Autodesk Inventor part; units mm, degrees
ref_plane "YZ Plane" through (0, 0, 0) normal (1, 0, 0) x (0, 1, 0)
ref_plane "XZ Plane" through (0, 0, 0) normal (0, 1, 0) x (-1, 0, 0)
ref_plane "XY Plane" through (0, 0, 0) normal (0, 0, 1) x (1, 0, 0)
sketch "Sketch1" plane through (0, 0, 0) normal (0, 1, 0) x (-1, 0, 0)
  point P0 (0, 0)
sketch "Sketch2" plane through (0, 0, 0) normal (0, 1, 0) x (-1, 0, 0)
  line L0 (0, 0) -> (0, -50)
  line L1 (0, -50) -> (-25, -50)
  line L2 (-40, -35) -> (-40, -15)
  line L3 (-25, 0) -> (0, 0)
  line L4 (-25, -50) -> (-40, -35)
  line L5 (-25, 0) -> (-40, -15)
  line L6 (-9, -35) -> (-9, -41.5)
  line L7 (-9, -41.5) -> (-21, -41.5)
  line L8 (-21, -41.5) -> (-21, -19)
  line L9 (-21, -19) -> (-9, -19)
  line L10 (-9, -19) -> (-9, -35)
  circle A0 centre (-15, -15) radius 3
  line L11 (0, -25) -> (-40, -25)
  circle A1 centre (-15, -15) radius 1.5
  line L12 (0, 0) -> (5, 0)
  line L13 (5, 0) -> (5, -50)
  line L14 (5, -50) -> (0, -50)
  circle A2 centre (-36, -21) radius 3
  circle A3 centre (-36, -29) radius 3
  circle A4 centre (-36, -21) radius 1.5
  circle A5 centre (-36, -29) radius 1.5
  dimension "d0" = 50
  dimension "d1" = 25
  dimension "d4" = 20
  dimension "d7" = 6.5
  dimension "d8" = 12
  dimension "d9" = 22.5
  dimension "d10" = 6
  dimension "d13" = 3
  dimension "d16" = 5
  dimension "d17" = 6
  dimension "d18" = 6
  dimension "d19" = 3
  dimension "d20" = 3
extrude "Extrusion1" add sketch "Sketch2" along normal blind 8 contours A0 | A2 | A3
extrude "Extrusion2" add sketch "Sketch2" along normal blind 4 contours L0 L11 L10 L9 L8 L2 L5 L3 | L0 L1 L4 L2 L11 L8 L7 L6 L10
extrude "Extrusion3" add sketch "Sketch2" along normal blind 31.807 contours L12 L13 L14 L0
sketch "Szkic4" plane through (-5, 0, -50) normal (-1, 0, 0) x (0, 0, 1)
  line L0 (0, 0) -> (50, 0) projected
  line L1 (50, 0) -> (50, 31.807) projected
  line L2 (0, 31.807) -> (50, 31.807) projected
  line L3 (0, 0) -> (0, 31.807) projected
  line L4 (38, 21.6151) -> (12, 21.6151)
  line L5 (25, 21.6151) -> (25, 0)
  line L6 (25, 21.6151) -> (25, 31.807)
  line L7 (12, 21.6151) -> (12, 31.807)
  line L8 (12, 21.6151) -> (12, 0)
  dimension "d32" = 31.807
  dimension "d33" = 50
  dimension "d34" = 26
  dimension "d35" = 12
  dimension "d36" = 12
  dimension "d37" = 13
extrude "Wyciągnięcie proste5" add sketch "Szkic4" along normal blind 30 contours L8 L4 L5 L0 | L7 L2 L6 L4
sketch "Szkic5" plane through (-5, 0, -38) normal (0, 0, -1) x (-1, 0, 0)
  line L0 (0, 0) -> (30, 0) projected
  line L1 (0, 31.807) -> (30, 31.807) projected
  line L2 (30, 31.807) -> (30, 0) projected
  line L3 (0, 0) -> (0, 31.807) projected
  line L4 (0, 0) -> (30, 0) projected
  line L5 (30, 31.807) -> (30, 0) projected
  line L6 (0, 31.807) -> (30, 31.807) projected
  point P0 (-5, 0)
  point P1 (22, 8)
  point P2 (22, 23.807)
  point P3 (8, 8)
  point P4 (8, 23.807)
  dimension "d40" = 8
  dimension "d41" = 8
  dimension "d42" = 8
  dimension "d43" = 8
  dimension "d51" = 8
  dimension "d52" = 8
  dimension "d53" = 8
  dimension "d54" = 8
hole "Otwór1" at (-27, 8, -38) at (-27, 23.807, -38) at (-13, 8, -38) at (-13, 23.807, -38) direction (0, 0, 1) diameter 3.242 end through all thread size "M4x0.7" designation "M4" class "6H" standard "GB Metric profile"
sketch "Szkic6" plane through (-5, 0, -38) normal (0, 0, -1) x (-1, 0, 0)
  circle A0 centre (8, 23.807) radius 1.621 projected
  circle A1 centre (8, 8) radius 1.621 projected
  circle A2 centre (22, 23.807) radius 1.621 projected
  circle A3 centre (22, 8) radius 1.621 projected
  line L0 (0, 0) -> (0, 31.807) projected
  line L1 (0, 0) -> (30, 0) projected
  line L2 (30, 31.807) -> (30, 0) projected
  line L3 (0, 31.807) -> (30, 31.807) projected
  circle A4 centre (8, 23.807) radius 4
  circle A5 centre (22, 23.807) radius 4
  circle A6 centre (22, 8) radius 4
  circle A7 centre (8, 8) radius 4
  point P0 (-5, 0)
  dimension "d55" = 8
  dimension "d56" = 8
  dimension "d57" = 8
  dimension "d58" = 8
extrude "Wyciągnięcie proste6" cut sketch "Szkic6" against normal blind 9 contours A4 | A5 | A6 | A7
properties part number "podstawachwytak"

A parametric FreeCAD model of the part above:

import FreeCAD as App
import Part
import Sketcher
from FreeCAD import Vector
Q = App.Units.Quantity

doc = App.newDocument("Part")
body = doc.addObject("PartDesign::Body", "Body")
body.AllowCompound = True

# Sketch on XZ plane
sketch1 = body.newObject("Sketcher::SketchObject", "Sketch")
sketch1.AttachmentSupport = (doc.getObject("XZ_Plane"), [""])
sketch1.MapMode = "FlatFace"
sketch1.addGeometry(Part.Circle(Vector(15, -15, 0), Vector(0, 0, 1), 3), False)
sketch1.addGeometry(Part.Circle(Vector(15, -15, 0), Vector(0, 0, 1), 1.5), False)
sketch1.addGeometry(Part.Circle(Vector(36, -21, 0), Vector(0, 0, 1), 3), False)
sketch1.addGeometry(Part.Circle(Vector(36, -21, 0), Vector(0, 0, 1), 1.5), False)
sketch1.addGeometry(Part.Circle(Vector(36, -29, 0), Vector(0, 0, 1), 3), False)
sketch1.addGeometry(Part.Circle(Vector(36, -29, 0), Vector(0, 0, 1), 1.5), False)
sketch1.addConstraint(Sketcher.Constraint("Coincident", 1, 3, 0, 3))
sketch1.addConstraint(Sketcher.Constraint("Coincident", 3, 3, 2, 3))
sketch1.addConstraint(Sketcher.Constraint("Coincident", 5, 3, 4, 3))
sketch1.addConstraint(Sketcher.Constraint("Equal", 0, 2))
sketch1.addConstraint(Sketcher.Constraint("Equal", 1, 3))
sketch1.addConstraint(Sketcher.Constraint("Equal", 2, 4))
sketch1.addConstraint(Sketcher.Constraint("Equal", 3, 5))
sketch1.addConstraint(Sketcher.Constraint("Vertical", 3, 3, 4, 3))
sketch1.addConstraint(Sketcher.Constraint("Diameter", 0, Q("6 mm")))
sketch1.addConstraint(Sketcher.Constraint("Diameter", 1, Q("3 mm")))
sketch1.addConstraint(Sketcher.Constraint("DistanceY", 2, 3, 0, 3, Q("6 mm")))
sketch1.addConstraint(Sketcher.Constraint("DistanceX", -1, 1, 0, 3, Q("15 mm")))
sketch1.addConstraint(Sketcher.Constraint("DistanceY", 0, 3, -1, 1, Q("15 mm")))
sketch1.addConstraint(Sketcher.Constraint("DistanceX", -1, 1, 2, 3, Q("36 mm")))
sketch1.addConstraint(Sketcher.Constraint("DistanceY", 4, 3, -1, 1, Q("29 mm")))
pad1 = body.newObject("PartDesign::Pad", "Pad")
pad1.Profile = sketch1
pad1.Length = 8
pad1.Reversed = True

# Sketch on XZ plane
sketch2 = body.newObject("Sketcher::SketchObject", "Sketch001")
sketch2.AttachmentSupport = (doc.getObject("XZ_Plane"), [""])
sketch2.MapMode = "FlatFace"
sketch2.addGeometry(Part.LineSegment(Vector(0, 0, 0), Vector(25, 0, 0)), False)
sketch2.addGeometry(Part.LineSegment(Vector(25, 0, 0), Vector(40, -15, 0)), False)
sketch2.addGeometry(Part.LineSegment(Vector(40, -15, 0), Vector(40, -35, 0)), False)
sketch2.addGeometry(Part.LineSegment(Vector(40, -35, 0), Vector(25, -50, 0)), False)
sketch2.addGeometry(Part.LineSegment(Vector(25, -50, 0), Vector(0, -50, 0)), False)
sketch2.addGeometry(Part.LineSegment(Vector(0, -50, 0), Vector(0, 0, 0)), False)
sketch2.addGeometry(Part.LineSegment(Vector(9, -19, 0), Vector(9, -41.5, 0)), False)
sketch2.addGeometry(Part.LineSegment(Vector(9, -41.5, 0), Vector(21, -41.5, 0)), False)
sketch2.addGeometry(Part.LineSegment(Vector(21, -41.5, 0), Vector(21, -19, 0)), False)
sketch2.addGeometry(Part.LineSegment(Vector(21, -19, 0), Vector(9, -19, 0)), False)
sketch2.addGeometry(Part.Circle(Vector(36, -21, 0), Vector(0, 0, 1), 3), False)
sketch2.addGeometry(Part.Circle(Vector(15, -15, 0), Vector(0, 0, 1), 3), False)
sketch2.addGeometry(Part.Circle(Vector(36, -29, 0), Vector(0, 0, 1), 3), False)
sketch2.addConstraint(Sketcher.Constraint("Coincident", 0, 2, 1, 1))
sketch2.addConstraint(Sketcher.Constraint("Coincident", 1, 2, 2, 1))
sketch2.addConstraint(Sketcher.Constraint("Coincident", 2, 2, 3, 1))
sketch2.addConstraint(Sketcher.Constraint("Coincident", 3, 2, 4, 1))
sketch2.addConstraint(Sketcher.Constraint("Coincident", 4, 2, 5, 1))
sketch2.addConstraint(Sketcher.Constraint("Coincident", 5, 2, 0, 1))
sketch2.addConstraint(Sketcher.Constraint("Coincident", 6, 2, 7, 1))
sketch2.addConstraint(Sketcher.Constraint("Coincident", 7, 2, 8, 1))
sketch2.addConstraint(Sketcher.Constraint("Coincident", 8, 2, 9, 1))
sketch2.addConstraint(Sketcher.Constraint("Coincident", 9, 2, 6, 1))
sketch2.addConstraint(Sketcher.Constraint("Horizontal", 0))
sketch2.addConstraint(Sketcher.Constraint("Vertical", 2))
sketch2.addConstraint(Sketcher.Constraint("Horizontal", 4))
sketch2.addConstraint(Sketcher.Constraint("Vertical", 5))
sketch2.addConstraint(Sketcher.Constraint("Vertical", 6))
sketch2.addConstraint(Sketcher.Constraint("Horizontal", 7))
sketch2.addConstraint(Sketcher.Constraint("Vertical", 8))
sketch2.addConstraint(Sketcher.Constraint("Horizontal", 9))
sketch2.addConstraint(Sketcher.Constraint("Coincident", 5, 2, -1, 1))
sketch2.addConstraint(Sketcher.Constraint("Equal", 10, 11))
sketch2.addConstraint(Sketcher.Constraint("Equal", 11, 12))
sketch2.addConstraint(Sketcher.Constraint("Perpendicular", 1, 3))
sketch2.addConstraint(Sketcher.Constraint("Horizontal", 11, 3, 1, 2))
sketch2.addConstraint(Sketcher.Constraint("Vertical", 10, 3, 12, 3))
sketch2.addConstraint(Sketcher.Constraint("Vertical", 0, 2, 3, 2))
sketch2.addConstraint(Sketcher.Constraint("Equal", 1, 3))
sketch2.addConstraint(Sketcher.Constraint("Diameter", 10, Q("6 mm")))
sketch2.addConstraint(Sketcher.Constraint("DistanceX", 0, 1, 0, 2, Q("25 mm")))
sketch2.addConstraint(Sketcher.Constraint("DistanceX", 7, 1, 7, 2, Q("12 mm")))
sketch2.addConstraint(Sketcher.Constraint("DistanceY", 2, 2, 2, 1, Q("20 mm")))
sketch2.addConstraint(Sketcher.Constraint("DistanceY", 5, 1, 5, 2, Q("50 mm")))
sketch2.addConstraint(Sketcher.Constraint("DistanceY", 6, 2, 6, 1, Q("22.5 mm")))
sketch2.addConstraint(Sketcher.Constraint("DistanceY", 10, 3, 11, 3, Q("6 mm")))
sketch2.addConstraint(Sketcher.Constraint("DistanceX", 11, 3, 1, 2, Q("25 mm")))
sketch2.addConstraint(Sketcher.Constraint("DistanceY", 2, 2, 12, 3, Q("6 mm")))
sketch2.addConstraint(Sketcher.Constraint("DistanceX", 6, 2, 11, 3, Q("6 mm")))
sketch2.addConstraint(Sketcher.Constraint("DistanceY", 6, 2, 2, 2, Q("6.5 mm")))
sketch2.addConstraint(Sketcher.Constraint("DistanceX", -1, 1, 10, 3, Q("36 mm")))
pad2 = body.newObject("PartDesign::Pad", "Pad001")
pad2.Profile = sketch2
pad2.Length = 4
pad2.Reversed = True

# Sketch on XZ plane
sketch3 = body.newObject("Sketcher::SketchObject", "Sketch002")
sketch3.AttachmentSupport = (doc.getObject("XZ_Plane"), [""])
sketch3.MapMode = "FlatFace"
sketch3.addGeometry(Part.LineSegment(Vector(-5, 0, 0), Vector(0, 0, 0)), False)
sketch3.addGeometry(Part.LineSegment(Vector(0, 0, 0), Vector(0, -50, 0)), False)
sketch3.addGeometry(Part.LineSegment(Vector(0, -50, 0), Vector(-5, -50, 0)), False)
sketch3.addGeometry(Part.LineSegment(Vector(-5, -50, 0), Vector(-5, 0, 0)), False)
sketch3.addConstraint(Sketcher.Constraint("Coincident", 0, 2, 1, 1))
sketch3.addConstraint(Sketcher.Constraint("Coincident", 1, 2, 2, 1))
sketch3.addConstraint(Sketcher.Constraint("Coincident", 2, 2, 3, 1))
sketch3.addConstraint(Sketcher.Constraint("Coincident", 3, 2, 0, 1))
sketch3.addConstraint(Sketcher.Constraint("Horizontal", 0))
sketch3.addConstraint(Sketcher.Constraint("Vertical", 1))
sketch3.addConstraint(Sketcher.Constraint("Horizontal", 2))
sketch3.addConstraint(Sketcher.Constraint("Vertical", 3))
sketch3.addConstraint(Sketcher.Constraint("Coincident", 0, 2, -1, 1))
sketch3.addConstraint(Sketcher.Constraint("DistanceX", 0, 1, 0, 2, Q("5 mm")))
sketch3.addConstraint(Sketcher.Constraint("DistanceY", 1, 2, 1, 1, Q("50 mm")))
pad3 = body.newObject("PartDesign::Pad", "Pad002")
pad3.Profile = sketch3
pad3.Length = 31.807
pad3.Reversed = True

# Sketch on YZ plane
sketch4 = body.newObject("Sketcher::SketchObject", "Sketch003")
sketch4.AttachmentSupport = (doc.getObject("YZ_Plane"), [""])
sketch4.MapMode = "FlatFace"
sketch4.AttachmentOffset = App.Placement(Vector(0, 0, -5), App.Rotation())
sketch4.addGeometry(Part.LineSegment(Vector(0, -38, 0), Vector(0, -25, 0)), False)
sketch4.addGeometry(Part.LineSegment(Vector(0, -25, 0), Vector(32, -25, 0)), False)
sketch4.addGeometry(Part.LineSegment(Vector(32, -25, 0), Vector(32, -38, 0)), False)
sketch4.addGeometry(Part.LineSegment(Vector(32, -38, 0), Vector(0, -38, 0)), False)
sketch4.addConstraint(Sketcher.Constraint("Coincident", 0, 2, 1, 1))
sketch4.addConstraint(Sketcher.Constraint("Coincident", 1, 2, 2, 1))
sketch4.addConstraint(Sketcher.Constraint("Coincident", 2, 2, 3, 1))
sketch4.addConstraint(Sketcher.Constraint("Coincident", 3, 2, 0, 1))
sketch4.addConstraint(Sketcher.Constraint("Vertical", 0))
sketch4.addConstraint(Sketcher.Constraint("Horizontal", 1))
sketch4.addConstraint(Sketcher.Constraint("Vertical", 2))
sketch4.addConstraint(Sketcher.Constraint("Horizontal", 3))
sketch4.addConstraint(Sketcher.Constraint("PointOnObject", 0, 2, -2))
sketch4.addConstraint(Sketcher.Constraint("DistanceY", 0, 1, 0, 2, Q("13 mm")))
sketch4.addConstraint(Sketcher.Constraint("DistanceX", 1, 1, 1, 2, Q("31.807 mm")))
sketch4.addConstraint(Sketcher.Constraint("DistanceY", 0, 2, -1, 1, Q("25 mm")))
pad4 = body.newObject("PartDesign::Pad", "Pad003")
pad4.Profile = sketch4
pad4.Length = 30
pad4.Reversed = True

# Sketch on XY plane
sketch5 = body.newObject("Sketcher::SketchObject", "Sketch004")
sketch5.AttachmentSupport = (doc.getObject("XY_Plane"), [""])
sketch5.MapMode = "FlatFace"
sketch5.AttachmentOffset = App.Placement(Vector(0, 0, -38), App.Rotation())
sketch5.addGeometry(Part.Circle(Vector(-27, 8, 0), Vector(0, 0, 1), 1.6), False)
sketch5.addGeometry(Part.Circle(Vector(-27, 23.8, 0), Vector(0, 0, 1), 1.6), False)
sketch5.addGeometry(Part.Circle(Vector(-13, 8, 0), Vector(0, 0, 1), 1.6), False)
sketch5.addGeometry(Part.Circle(Vector(-13, 23.8, 0), Vector(0, 0, 1), 1.6), False)
sketch5.addConstraint(Sketcher.Constraint("Equal", 0, 1))
sketch5.addConstraint(Sketcher.Constraint("Equal", 1, 2))
sketch5.addConstraint(Sketcher.Constraint("Equal", 2, 3))
sketch5.addConstraint(Sketcher.Constraint("Horizontal", 0, 3, 2, 3))
sketch5.addConstraint(Sketcher.Constraint("Horizontal", 1, 3, 3, 3))
sketch5.addConstraint(Sketcher.Constraint("Vertical", 0, 3, 1, 3))
sketch5.addConstraint(Sketcher.Constraint("Vertical", 2, 3, 3, 3))
sketch5.addConstraint(Sketcher.Constraint("Diameter", 0, Q("3.242 mm")))
sketch5.addConstraint(Sketcher.Constraint("DistanceX", 0, 3, -1, 1, Q("27 mm")))
sketch5.addConstraint(Sketcher.Constraint("DistanceY", -1, 1, 0, 3, Q("8 mm")))
sketch5.addConstraint(Sketcher.Constraint("DistanceX", 2, 3, -1, 1, Q("13 mm")))
sketch5.addConstraint(Sketcher.Constraint("DistanceY", -1, 1, 1, 3, Q("23.807 mm")))
doc.recompute()
hole = body.newObject("PartDesign::Hole", "Hole")
hole.Profile = sketch5
hole.ThreadType = "None"
hole.Diameter = 3.242
hole.DepthType = "ThroughAll"
hole.Reversed = True

# Sketch on XY plane
sketch6 = body.newObject("Sketcher::SketchObject", "Sketch005")
sketch6.AttachmentSupport = (doc.getObject("XY_Plane"), [""])
sketch6.MapMode = "FlatFace"
sketch6.AttachmentOffset = App.Placement(Vector(0, 0, -38), App.Rotation())
sketch6.addGeometry(Part.Circle(Vector(-13, 23.8, 0), Vector(0, 0, 1), 4), False)
sketch6.addGeometry(Part.Circle(Vector(-13, 23.8, 0), Vector(0, 0, 1), 1.6), False)
sketch6.addGeometry(Part.Circle(Vector(-27, 23.8, 0), Vector(0, 0, 1), 4), False)
sketch6.addGeometry(Part.Circle(Vector(-27, 23.8, 0), Vector(0, 0, 1), 1.6), False)
sketch6.addGeometry(Part.Circle(Vector(-27, 8, 0), Vector(0, 0, 1), 4), False)
sketch6.addGeometry(Part.Circle(Vector(-27, 8, 0), Vector(0, 0, 1), 1.6), False)
sketch6.addGeometry(Part.Circle(Vector(-13, 8, 0), Vector(0, 0, 1), 4), False)
sketch6.addGeometry(Part.Circle(Vector(-13, 8, 0), Vector(0, 0, 1), 1.6), False)
sketch6.addConstraint(Sketcher.Constraint("Coincident", 1, 3, 0, 3))
sketch6.addConstraint(Sketcher.Constraint("Coincident", 3, 3, 2, 3))
sketch6.addConstraint(Sketcher.Constraint("Coincident", 5, 3, 4, 3))
sketch6.addConstraint(Sketcher.Constraint("Coincident", 7, 3, 6, 3))
sketch6.addConstraint(Sketcher.Constraint("Equal", 0, 2))
sketch6.addConstraint(Sketcher.Constraint("Equal", 1, 3))
sketch6.addConstraint(Sketcher.Constraint("Equal", 2, 4))
sketch6.addConstraint(Sketcher.Constraint("Equal", 3, 5))
sketch6.addConstraint(Sketcher.Constraint("Equal", 4, 6))
sketch6.addConstraint(Sketcher.Constraint("Equal", 5, 7))
sketch6.addConstraint(Sketcher.Constraint("Horizontal", 1, 3, 2, 3))
sketch6.addConstraint(Sketcher.Constraint("Horizontal", 5, 3, 6, 3))
sketch6.addConstraint(Sketcher.Constraint("Vertical", 3, 3, 4, 3))
sketch6.addConstraint(Sketcher.Constraint("Vertical", 1, 3, 6, 3))
sketch6.addConstraint(Sketcher.Constraint("Diameter", 0, Q("8 mm")))
sketch6.addConstraint(Sketcher.Constraint("DistanceY", -1, 1, 4, 3, Q("8 mm")))
sketch6.addConstraint(Sketcher.Constraint("Diameter", 1, Q("3.242 mm")))
sketch6.addConstraint(Sketcher.Constraint("DistanceX", 0, 3, -1, 1, Q("13 mm")))
sketch6.addConstraint(Sketcher.Constraint("DistanceX", 2, 3, -1, 1, Q("27 mm")))
sketch6.addConstraint(Sketcher.Constraint("DistanceY", -1, 1, 0, 3, Q("23.807 mm")))
pocket1 = body.newObject("PartDesign::Pocket", "Pocket")
pocket1.Profile = sketch6
pocket1.Length = 9
pocket1.Reversed = True

doc.recompute()
